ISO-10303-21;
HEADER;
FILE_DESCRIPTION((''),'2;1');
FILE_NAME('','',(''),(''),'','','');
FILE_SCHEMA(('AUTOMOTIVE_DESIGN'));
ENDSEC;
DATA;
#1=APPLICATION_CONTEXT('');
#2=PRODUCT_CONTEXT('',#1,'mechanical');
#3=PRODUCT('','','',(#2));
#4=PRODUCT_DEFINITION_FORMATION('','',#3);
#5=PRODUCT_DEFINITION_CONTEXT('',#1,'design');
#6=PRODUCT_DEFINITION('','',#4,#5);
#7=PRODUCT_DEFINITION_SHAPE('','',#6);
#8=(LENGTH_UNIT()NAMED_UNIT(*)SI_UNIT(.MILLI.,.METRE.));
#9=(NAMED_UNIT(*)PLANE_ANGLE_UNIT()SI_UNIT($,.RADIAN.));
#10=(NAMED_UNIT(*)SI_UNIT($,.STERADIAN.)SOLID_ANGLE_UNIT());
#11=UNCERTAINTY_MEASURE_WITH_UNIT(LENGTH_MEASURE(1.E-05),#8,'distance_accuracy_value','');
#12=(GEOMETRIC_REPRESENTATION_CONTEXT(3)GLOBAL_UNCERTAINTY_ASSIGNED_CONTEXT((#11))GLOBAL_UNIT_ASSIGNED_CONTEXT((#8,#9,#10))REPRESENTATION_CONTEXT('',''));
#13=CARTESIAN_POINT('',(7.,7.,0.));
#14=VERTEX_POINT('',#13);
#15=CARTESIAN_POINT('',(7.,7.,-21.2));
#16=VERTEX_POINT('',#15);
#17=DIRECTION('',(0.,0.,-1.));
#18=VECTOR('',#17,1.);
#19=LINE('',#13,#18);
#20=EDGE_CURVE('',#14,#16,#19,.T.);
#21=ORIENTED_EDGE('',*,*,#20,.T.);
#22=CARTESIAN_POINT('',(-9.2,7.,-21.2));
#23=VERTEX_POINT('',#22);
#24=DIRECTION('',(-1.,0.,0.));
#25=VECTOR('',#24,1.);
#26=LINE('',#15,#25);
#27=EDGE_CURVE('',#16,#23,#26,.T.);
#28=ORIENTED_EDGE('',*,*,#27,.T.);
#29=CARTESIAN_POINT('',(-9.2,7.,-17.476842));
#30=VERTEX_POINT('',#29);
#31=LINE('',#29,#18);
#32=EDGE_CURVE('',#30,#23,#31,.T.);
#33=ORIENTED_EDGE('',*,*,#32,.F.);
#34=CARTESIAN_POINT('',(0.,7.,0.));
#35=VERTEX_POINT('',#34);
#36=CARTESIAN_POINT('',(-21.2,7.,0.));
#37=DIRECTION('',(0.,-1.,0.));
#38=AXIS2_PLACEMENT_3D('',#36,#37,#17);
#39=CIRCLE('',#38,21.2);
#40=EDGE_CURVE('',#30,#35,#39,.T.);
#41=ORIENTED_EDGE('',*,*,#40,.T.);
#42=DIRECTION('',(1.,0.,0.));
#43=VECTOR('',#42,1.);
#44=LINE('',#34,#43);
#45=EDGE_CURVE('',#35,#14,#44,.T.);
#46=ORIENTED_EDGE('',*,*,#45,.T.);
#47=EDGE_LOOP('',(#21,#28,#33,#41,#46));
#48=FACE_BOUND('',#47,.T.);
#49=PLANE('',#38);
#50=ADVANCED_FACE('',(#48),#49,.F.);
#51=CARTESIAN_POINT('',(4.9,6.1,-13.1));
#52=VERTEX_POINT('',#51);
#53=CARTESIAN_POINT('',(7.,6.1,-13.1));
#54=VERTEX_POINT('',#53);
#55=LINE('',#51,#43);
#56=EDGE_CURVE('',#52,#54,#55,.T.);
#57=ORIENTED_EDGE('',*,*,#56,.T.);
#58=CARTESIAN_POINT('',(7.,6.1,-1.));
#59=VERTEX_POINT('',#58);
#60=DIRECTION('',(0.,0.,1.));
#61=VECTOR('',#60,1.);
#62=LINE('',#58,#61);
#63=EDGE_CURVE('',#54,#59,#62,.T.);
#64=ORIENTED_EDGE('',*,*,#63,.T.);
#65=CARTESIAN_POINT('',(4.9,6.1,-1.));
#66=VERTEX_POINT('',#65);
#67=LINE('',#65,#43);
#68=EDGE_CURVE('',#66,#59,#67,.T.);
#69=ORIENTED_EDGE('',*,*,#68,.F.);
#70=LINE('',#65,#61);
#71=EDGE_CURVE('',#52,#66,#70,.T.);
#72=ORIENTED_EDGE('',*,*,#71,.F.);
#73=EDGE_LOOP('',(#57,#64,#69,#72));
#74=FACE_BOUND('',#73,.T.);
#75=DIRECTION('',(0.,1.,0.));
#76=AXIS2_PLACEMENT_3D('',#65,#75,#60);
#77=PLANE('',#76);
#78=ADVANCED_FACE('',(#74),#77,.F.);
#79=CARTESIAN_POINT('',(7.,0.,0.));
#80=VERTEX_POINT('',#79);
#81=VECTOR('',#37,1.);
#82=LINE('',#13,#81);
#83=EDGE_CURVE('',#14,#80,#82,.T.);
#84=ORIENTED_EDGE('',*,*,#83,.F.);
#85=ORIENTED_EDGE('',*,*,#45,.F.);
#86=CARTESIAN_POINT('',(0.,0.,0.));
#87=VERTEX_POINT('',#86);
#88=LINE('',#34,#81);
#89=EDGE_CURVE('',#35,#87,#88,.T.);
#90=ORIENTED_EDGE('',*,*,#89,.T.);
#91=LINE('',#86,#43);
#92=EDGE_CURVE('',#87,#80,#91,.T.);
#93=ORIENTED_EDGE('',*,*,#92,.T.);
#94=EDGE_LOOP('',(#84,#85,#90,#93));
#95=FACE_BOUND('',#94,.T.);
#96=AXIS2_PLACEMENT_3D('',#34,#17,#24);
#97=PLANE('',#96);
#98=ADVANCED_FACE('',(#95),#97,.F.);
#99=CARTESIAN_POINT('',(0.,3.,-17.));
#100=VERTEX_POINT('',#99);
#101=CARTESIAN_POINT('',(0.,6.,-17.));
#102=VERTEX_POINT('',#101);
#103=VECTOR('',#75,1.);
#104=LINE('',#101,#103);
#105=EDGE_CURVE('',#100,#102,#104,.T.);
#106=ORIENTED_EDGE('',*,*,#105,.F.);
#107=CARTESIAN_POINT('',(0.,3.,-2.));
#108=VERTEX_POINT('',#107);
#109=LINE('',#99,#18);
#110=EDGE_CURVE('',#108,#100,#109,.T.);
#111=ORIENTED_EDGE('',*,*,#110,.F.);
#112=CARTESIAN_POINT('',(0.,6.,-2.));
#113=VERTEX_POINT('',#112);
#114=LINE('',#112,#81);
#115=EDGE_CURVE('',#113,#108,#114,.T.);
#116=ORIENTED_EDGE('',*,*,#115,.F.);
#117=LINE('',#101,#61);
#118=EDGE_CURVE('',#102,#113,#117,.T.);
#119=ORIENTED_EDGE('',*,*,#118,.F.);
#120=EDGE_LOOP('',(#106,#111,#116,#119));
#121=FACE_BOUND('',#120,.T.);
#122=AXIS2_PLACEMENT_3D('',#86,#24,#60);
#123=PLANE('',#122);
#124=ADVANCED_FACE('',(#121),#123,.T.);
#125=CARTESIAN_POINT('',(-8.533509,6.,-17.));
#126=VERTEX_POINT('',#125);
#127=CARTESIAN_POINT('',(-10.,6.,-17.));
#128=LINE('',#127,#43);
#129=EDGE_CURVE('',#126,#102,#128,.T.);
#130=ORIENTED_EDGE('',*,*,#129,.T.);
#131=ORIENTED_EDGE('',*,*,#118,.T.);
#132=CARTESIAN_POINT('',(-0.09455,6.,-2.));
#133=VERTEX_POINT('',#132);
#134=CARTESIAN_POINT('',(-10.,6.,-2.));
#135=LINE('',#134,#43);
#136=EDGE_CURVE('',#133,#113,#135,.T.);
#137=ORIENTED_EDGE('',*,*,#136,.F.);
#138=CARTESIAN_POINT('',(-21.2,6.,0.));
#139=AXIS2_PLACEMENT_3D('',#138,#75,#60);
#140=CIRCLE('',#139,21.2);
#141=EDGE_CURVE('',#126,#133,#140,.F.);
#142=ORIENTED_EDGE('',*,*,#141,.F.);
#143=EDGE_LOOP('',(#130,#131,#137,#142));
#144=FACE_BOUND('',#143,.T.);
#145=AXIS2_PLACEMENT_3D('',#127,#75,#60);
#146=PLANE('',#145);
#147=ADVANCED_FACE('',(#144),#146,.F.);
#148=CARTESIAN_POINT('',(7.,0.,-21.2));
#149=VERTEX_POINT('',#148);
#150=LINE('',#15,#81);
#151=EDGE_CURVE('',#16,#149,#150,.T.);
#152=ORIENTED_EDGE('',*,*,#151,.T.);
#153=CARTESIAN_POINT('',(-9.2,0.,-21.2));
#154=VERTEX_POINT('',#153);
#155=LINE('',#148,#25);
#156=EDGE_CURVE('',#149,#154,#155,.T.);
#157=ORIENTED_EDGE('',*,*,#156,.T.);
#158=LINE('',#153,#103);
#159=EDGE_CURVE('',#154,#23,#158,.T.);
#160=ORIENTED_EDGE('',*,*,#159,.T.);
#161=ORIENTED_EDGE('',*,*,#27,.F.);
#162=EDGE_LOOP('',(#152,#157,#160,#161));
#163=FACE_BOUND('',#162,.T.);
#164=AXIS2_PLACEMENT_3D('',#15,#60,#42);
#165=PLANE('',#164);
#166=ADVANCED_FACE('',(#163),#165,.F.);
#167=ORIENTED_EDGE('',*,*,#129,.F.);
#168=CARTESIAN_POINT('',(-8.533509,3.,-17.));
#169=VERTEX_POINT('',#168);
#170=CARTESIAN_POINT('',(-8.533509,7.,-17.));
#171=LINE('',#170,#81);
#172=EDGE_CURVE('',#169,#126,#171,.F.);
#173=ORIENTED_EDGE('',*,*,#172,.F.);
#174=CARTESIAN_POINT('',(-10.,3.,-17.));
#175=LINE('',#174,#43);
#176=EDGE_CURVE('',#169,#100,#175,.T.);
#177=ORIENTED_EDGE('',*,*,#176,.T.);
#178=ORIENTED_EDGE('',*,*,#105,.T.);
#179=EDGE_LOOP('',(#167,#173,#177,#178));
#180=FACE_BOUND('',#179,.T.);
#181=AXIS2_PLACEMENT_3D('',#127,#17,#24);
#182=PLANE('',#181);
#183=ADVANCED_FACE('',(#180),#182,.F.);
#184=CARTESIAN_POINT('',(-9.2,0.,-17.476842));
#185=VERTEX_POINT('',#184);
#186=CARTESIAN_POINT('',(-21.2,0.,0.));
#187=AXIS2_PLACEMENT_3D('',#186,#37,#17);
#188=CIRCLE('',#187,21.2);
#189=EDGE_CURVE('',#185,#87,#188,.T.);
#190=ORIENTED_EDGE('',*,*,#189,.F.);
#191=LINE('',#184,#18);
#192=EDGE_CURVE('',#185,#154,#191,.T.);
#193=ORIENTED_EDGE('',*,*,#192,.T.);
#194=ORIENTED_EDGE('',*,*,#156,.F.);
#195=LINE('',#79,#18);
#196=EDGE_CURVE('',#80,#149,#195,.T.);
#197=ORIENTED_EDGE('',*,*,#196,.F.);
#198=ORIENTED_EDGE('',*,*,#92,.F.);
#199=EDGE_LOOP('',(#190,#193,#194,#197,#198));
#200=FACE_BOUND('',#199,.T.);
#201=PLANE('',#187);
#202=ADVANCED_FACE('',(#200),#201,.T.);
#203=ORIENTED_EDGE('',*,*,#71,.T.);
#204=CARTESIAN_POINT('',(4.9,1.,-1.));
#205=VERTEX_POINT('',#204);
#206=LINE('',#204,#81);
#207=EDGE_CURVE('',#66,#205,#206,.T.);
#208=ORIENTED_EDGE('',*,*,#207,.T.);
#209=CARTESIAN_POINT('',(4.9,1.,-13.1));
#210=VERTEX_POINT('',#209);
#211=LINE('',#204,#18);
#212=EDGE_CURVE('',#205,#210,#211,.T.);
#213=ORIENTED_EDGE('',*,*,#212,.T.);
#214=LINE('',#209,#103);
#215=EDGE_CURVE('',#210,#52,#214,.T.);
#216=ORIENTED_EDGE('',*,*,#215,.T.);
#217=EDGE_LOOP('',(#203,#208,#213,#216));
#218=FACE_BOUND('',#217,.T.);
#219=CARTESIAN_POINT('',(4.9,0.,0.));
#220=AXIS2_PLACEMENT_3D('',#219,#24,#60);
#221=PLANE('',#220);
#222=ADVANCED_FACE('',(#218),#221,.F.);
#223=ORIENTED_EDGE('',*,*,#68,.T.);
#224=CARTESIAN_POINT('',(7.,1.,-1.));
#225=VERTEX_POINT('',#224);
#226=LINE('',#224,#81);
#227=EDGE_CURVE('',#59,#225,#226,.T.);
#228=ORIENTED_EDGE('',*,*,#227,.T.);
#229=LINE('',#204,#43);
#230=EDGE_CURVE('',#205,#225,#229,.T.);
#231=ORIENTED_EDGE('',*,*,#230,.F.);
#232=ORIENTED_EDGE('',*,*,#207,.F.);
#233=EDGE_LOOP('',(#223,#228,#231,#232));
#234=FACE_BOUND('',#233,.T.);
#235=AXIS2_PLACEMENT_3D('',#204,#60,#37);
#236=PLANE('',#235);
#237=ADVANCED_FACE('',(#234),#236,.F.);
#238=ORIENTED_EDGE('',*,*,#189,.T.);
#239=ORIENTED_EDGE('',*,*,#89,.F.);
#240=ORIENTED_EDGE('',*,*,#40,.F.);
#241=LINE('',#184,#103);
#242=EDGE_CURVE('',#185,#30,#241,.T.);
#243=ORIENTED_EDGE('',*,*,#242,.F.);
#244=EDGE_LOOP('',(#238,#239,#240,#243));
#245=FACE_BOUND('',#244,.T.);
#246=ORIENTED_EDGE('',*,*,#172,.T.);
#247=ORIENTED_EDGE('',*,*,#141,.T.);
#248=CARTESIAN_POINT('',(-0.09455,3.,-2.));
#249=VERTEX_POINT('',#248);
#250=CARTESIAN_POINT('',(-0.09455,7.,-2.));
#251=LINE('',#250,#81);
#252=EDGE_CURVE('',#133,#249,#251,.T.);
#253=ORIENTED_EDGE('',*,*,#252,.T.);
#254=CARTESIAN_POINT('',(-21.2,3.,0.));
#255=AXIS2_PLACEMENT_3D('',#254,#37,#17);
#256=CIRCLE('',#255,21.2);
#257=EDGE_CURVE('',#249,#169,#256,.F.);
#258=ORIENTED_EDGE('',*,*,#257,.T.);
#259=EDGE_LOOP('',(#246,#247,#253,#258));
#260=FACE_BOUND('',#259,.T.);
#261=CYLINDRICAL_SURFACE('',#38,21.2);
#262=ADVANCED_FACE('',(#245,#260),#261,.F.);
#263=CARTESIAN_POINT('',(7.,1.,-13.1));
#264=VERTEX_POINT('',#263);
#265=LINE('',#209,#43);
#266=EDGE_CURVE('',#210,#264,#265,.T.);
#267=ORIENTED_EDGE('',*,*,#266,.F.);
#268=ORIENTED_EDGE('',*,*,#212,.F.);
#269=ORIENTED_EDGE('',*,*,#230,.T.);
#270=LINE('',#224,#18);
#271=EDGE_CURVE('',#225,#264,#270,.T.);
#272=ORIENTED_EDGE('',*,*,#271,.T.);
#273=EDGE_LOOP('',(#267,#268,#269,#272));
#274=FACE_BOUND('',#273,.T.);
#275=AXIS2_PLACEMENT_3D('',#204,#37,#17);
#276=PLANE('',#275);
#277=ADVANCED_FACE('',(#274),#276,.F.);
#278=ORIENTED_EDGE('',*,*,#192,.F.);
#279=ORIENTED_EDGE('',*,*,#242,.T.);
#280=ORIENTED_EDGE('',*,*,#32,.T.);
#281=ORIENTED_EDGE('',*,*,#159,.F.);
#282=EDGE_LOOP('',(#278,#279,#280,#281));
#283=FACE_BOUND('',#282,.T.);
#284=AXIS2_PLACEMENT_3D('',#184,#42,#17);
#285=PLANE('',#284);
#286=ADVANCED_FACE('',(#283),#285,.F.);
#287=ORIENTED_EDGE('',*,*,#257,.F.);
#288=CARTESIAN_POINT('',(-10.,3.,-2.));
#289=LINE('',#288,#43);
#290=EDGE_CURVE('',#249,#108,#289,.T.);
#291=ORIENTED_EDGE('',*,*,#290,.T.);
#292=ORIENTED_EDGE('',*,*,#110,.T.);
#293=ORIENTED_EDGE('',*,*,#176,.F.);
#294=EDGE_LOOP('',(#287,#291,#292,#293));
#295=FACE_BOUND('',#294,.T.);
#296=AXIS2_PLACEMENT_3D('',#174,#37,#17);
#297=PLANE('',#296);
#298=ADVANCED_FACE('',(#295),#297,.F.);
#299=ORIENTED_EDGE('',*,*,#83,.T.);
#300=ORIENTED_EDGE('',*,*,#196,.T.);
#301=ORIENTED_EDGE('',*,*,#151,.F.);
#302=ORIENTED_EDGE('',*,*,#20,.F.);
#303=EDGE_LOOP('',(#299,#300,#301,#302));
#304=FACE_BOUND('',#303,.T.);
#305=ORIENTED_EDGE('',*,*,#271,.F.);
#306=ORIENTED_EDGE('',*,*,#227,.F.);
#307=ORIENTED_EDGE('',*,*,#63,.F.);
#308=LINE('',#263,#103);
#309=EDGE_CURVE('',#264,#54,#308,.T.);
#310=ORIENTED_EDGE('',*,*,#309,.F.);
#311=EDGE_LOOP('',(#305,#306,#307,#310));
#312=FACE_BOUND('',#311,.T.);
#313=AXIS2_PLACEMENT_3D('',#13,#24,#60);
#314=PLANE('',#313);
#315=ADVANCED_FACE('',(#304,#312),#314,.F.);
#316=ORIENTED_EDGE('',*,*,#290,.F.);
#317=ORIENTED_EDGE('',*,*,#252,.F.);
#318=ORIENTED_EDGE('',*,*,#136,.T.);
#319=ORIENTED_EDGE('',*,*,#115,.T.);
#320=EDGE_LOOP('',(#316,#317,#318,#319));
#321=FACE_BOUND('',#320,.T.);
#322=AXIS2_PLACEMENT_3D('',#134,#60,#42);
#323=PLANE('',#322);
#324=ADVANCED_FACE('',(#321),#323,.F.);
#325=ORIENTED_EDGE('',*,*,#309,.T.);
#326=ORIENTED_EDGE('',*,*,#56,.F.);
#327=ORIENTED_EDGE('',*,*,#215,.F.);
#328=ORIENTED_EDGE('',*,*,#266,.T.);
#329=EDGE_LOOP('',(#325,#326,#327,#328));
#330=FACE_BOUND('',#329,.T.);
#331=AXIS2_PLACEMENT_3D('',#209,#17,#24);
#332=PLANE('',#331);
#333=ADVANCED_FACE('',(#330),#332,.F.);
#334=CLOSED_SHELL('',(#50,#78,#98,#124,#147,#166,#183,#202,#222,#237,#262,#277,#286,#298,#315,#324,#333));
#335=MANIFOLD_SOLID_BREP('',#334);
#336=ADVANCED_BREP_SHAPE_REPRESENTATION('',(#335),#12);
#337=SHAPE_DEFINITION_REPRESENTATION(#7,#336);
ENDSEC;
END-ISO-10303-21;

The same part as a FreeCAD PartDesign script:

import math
import FreeCAD as App
import Part
import Sketcher

V = App.Vector
Q = App.Units.Quantity


def add_polygon(sketch, points):
    """Adds a closed chain of lines whose ends are joined by coincident constraints."""
    first, n = sketch.GeometryCount, len(points)
    for a, b in zip(points, points[1:] + points[:1]):
        sketch.addGeometry(Part.LineSegment(App.Vector(*a, 0), App.Vector(*b, 0)), False)
    for i in range(n):
        sketch.addConstraint(Sketcher.Constraint("Coincident", first + i, 2, first + (i + 1) % n, 1))

doc = App.newDocument("Part")
body = doc.addObject("PartDesign::Body", "Body")

# Sketch on XZ plane
sketch1 = doc.addObject("Sketcher::SketchObject", "Sketch")
body.addObject(sketch1)
sketch1.AttachmentSupport = (doc.XZ_Plane, [""])
sketch1.MapMode = "FlatFace"
sketch1.addGeometry(Part.LineSegment(V(7, -21, 0), V(-21, -21, 0)), False)
sketch1.addGeometry(Part.ArcOfCircle(Part.Circle(V(-21, 0, 0), V(0, 0, 1), 21), math.radians(-90), math.radians(0)), False)
sketch1.addGeometry(Part.LineSegment(V(0, 0, 0), V(7, 0, 0)), False)
sketch1.addGeometry(Part.LineSegment(V(7, 0, 0), V(7, -21, 0)), False)
sketch1.addConstraint(Sketcher.Constraint("Tangent", 0, 2, 1, 1))
sketch1.addConstraint(Sketcher.Constraint("Coincident", 1, 2, 2, 1))
sketch1.addConstraint(Sketcher.Constraint("Coincident", 2, 2, 3, 1))
sketch1.addConstraint(Sketcher.Constraint("Coincident", 3, 2, 0, 1))
sketch1.addConstraint(Sketcher.Constraint("Horizontal", 0))
sketch1.addConstraint(Sketcher.Constraint("Horizontal", 2))
sketch1.addConstraint(Sketcher.Constraint("Vertical", 3))
sketch1.addConstraint(Sketcher.Constraint("Coincident", 1, 2, -1, 1))
sketch1.addConstraint(Sketcher.Constraint("PointOnObject", 1, 3, -1))
sketch1.addConstraint(Sketcher.Constraint("Radius", 1, Q("21.2 mm")))
sketch1.addConstraint(Sketcher.Constraint("DistanceX", 2, 1, 2, 2, Q("7 mm")))
pad1 = doc.addObject("PartDesign::Pad", "Pad")
body.addObject(pad1)
pad1.Profile = sketch1
pad1.Length = 7
pad1.Reversed = True

# Sketch on XZ plane
sketch2 = doc.addObject("Sketcher::SketchObject", "Sketch001")
body.addObject(sketch2)
sketch2.AttachmentSupport = (doc.XZ_Plane, [""])
sketch2.MapMode = "FlatFace"
sketch2.AttachmentOffset = App.Placement(V(0, 0, -7), App.Rotation())
sketch2.addGeometry(Part.LineSegment(V(-9.2, -17.5, 0), V(-9.2, -21.2, 0)), False)
sketch2.addGeometry(Part.LineSegment(V(-9.2, -21.2, 0), V(-21.2, -21.2, 0)), False)
sketch2.addGeometry(Part.ArcOfCircle(Part.Circle(V(-21.2, 0, 0), V(0, 0, 1), 21.2), math.radians(-90), math.radians(-56)), False)
sketch2.addConstraint(Sketcher.Constraint("Coincident", 0, 2, 1, 1))
sketch2.addConstraint(Sketcher.Constraint("Tangent", 1, 2, 2, 1))
sketch2.addConstraint(Sketcher.Constraint("Coincident", 2, 2, 0, 1))
sketch2.addConstraint(Sketcher.Constraint("Vertical", 0))
sketch2.addConstraint(Sketcher.Constraint("Horizontal", 1))
sketch2.addConstraint(Sketcher.Constraint("PointOnObject", 2, 3, -1))
sketch2.addConstraint(Sketcher.Constraint("Radius", 2, Q("21.2 mm")))
sketch2.addConstraint(Sketcher.Constraint("DistanceX", 1, 2, 1, 1, Q("12 mm")))
sketch2.addConstraint(Sketcher.Constraint("DistanceX", 2, 3, -1, 1, Q("21.2 mm")))
pocket1 = doc.addObject("PartDesign::Pocket", "Pocket")
body.addObject(pocket1)
pocket1.Profile = sketch2
pocket1.Type = "ThroughAll"
pocket1.Reversed = True

# Sketch on YZ plane
sketch3 = doc.addObject("Sketcher::SketchObject", "Sketch002")
body.addObject(sketch3)
sketch3.AttachmentSupport = (doc.YZ_Plane, [""])
sketch3.MapMode = "FlatFace"
add_polygon(sketch3, [(6, -2), (3, -2), (3, -17), (6, -17)])  # lines 0-3
sketch3.addConstraint(Sketcher.Constraint("Horizontal", 0))
sketch3.addConstraint(Sketcher.Constraint("Vertical", 1))
sketch3.addConstraint(Sketcher.Constraint("Horizontal", 2))
sketch3.addConstraint(Sketcher.Constraint("Vertical", 3))
sketch3.addConstraint(Sketcher.Constraint("DistanceX", 0, 2, 0, 1, Q("3 mm")))
sketch3.addConstraint(Sketcher.Constraint("DistanceY", 1, 2, 1, 1, Q("15 mm")))
sketch3.addConstraint(Sketcher.Constraint("DistanceX", -1, 1, 0, 2, Q("3 mm")))
sketch3.addConstraint(Sketcher.Constraint("DistanceY", 0, 2, -1, 1, Q("2 mm")))
pocket2 = doc.addObject("PartDesign::Pocket", "Pocket001")
body.addObject(pocket2)
pocket2.Profile = sketch3
pocket2.Length = 10

# Sketch on YZ plane
sketch4 = doc.addObject("Sketcher::SketchObject", "Sketch003")
body.addObject(sketch4)
sketch4.AttachmentSupport = (doc.YZ_Plane, [""])
sketch4.MapMode = "FlatFace"
sketch4.AttachmentOffset = App.Placement(V(0, 0, 7), App.Rotation())
add_polygon(sketch4, [(6, -1), (1, -1), (1, -13), (6, -13)])  # lines 0-3
sketch4.addConstraint(Sketcher.Constraint("Horizontal", 0))
sketch4.addConstraint(Sketcher.Constraint("Vertical", 1))
sketch4.addConstraint(Sketcher.Constraint("Horizontal", 2))
sketch4.addConstraint(Sketcher.Constraint("Vertical", 3))
sketch4.addConstraint(Sketcher.Constraint("DistanceX", 0, 2, 0, 1, Q("5.1 mm")))
sketch4.addConstraint(Sketcher.Constraint("DistanceY", 1, 2, 1, 1, Q("12.1 mm")))
sketch4.addConstraint(Sketcher.Constraint("DistanceX", -1, 1, 0, 2, Q("1 mm")))
sketch4.addConstraint(Sketcher.Constraint("DistanceY", 0, 2, -1, 1, Q("1 mm")))
pocket3 = doc.addObject("PartDesign::Pocket", "Pocket002")
body.addObject(pocket3)
pocket3.Profile = sketch4
pocket3.Length = 2.1

doc.recompute()
